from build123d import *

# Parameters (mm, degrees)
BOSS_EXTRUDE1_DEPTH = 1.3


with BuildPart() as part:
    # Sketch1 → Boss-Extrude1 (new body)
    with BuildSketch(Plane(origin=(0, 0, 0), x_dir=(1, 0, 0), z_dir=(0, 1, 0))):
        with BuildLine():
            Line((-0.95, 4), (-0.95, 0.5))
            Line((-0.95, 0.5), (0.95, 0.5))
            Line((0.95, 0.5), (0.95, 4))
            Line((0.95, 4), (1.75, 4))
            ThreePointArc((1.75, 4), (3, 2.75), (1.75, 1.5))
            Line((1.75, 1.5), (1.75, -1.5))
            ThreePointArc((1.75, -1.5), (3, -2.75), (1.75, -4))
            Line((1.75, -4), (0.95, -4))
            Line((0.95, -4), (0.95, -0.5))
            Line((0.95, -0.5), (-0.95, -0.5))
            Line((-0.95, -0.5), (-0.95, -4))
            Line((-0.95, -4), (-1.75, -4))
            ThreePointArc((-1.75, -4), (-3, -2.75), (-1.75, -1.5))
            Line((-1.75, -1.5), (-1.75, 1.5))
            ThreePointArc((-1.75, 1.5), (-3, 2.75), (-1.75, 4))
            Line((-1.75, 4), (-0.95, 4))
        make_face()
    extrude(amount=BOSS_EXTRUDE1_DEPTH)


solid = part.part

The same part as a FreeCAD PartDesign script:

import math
import FreeCAD as App
import Part
import Sketcher

V = App.Vector

doc = App.newDocument("Part")
params = doc.addObject("Spreadsheet::Sheet", "Params")
for row, (alias, value) in enumerate([
    ("sketch1_height", "3 mm"),
    ("sketch1_radius", "1.25 mm"),
    ("sketch1_width", "0.8 mm"),
    ("sketch1_width2", "1.9 mm"),
    ("sketch1_height2", "3.5 mm"),
    ("pad1_length", "1.3 mm"),
], start=1):
    params.set(f"A{row}", alias)
    params.set(f"B{row}", "=" + value)
    params.setAlias(f"B{row}", alias)

body = doc.addObject("PartDesign::Body", "Body")

# Sketch on XZ plane
sketch1 = body.newObject("Sketcher::SketchObject", "Sketch")
sketch1.AttachmentSupport = (doc.getObject("XZ_Plane"), [""])
sketch1.MapMode = "FlatFace"
sketch1.addGeometry([
    Part.LineSegment(V(-0.95, -0.5, 0), V(-0.95, -4, 0)),  # 0
    Part.LineSegment(V(-0.95, -4, 0), V(-1.75, -4, 0)),  # 1
    Part.ArcOfCircle(Part.Circle(V(-1.75, -2.75, 0), V(0, 0, 1), 1.25), math.radians(90), math.radians(270)),  # 2
    Part.LineSegment(V(-1.75, -1.5, 0), V(-1.75, 1.5, 0)),  # 3
    Part.ArcOfCircle(Part.Circle(V(-1.75, 2.75, 0), V(0, 0, 1), 1.25), math.radians(90), math.radians(270)),  # 4
    Part.LineSegment(V(-1.75, 4, 0), V(-0.95, 4, 0)),  # 5
    Part.LineSegment(V(-0.95, 4, 0), V(-0.95, 0.5, 0)),  # 6
    Part.LineSegment(V(-0.95, 0.5, 0), V(0.95, 0.5, 0)),  # 7
    Part.LineSegment(V(0.95, 0.5, 0), V(0.95, 4, 0)),  # 8
    Part.LineSegment(V(0.95, 4, 0), V(1.75, 4, 0)),  # 9
    Part.ArcOfCircle(Part.Circle(V(1.75, 2.75, 0), V(0, 0, 1), 1.25), math.radians(-90), math.radians(90)),  # 10
    Part.LineSegment(V(1.75, 1.5, 0), V(1.75, -1.5, 0)),  # 11
    Part.ArcOfCircle(Part.Circle(V(1.75, -2.75, 0), V(0, 0, 1), 1.25), math.radians(-90), math.radians(90)),  # 12
    Part.LineSegment(V(1.75, -4, 0), V(0.95, -4, 0)),  # 13
    Part.LineSegment(V(0.95, -4, 0), V(0.95, -0.5, 0)),  # 14
    Part.LineSegment(V(0.95, -0.5, 0), V(-0.95, -0.5, 0)),  # 15
], False)
sketch1.addConstraint([
    Sketcher.Constraint("Coincident", 0, 2, 1, 1),
    Sketcher.Constraint("Tangent", 1, 2, 2, 2),
    Sketcher.Constraint("Coincident", 2, 1, 3, 1),
    Sketcher.Constraint("Coincident", 3, 2, 4, 2),
    Sketcher.Constraint("Tangent", 4, 1, 5, 1),
    Sketcher.Constraint("Coincident", 5, 2, 6, 1),
    Sketcher.Constraint("Coincident", 6, 2, 7, 1),
    Sketcher.Constraint("Coincident", 7, 2, 8, 1),
    Sketcher.Constraint("Coincident", 8, 2, 9, 1),
    Sketcher.Constraint("Tangent", 9, 2, 10, 2),
    Sketcher.Constraint("Coincident", 10, 1, 11, 1),
    Sketcher.Constraint("Coincident", 11, 2, 12, 2),
    Sketcher.Constraint("Tangent", 12, 1, 13, 1),
    Sketcher.Constraint("Coincident", 13, 2, 14, 1),
    Sketcher.Constraint("Coincident", 14, 2, 15, 1),
    Sketcher.Constraint("Coincident", 15, 2, 0, 1),
    Sketcher.Constraint("Vertical", 0),
    Sketcher.Constraint("Horizontal", 1),
    Sketcher.Constraint("Vertical", 3),
    Sketcher.Constraint("Horizontal", 5),
    Sketcher.Constraint("Vertical", 6),
    Sketcher.Constraint("Horizontal", 7),
    Sketcher.Constraint("Vertical", 8),
    Sketcher.Constraint("Horizontal", 9),
    Sketcher.Constraint("Vertical", 11),
    Sketcher.Constraint("Horizontal", 13),
    Sketcher.Constraint("Vertical", 14),
    Sketcher.Constraint("Horizontal", 15),
    Sketcher.Constraint("Equal", 2, 4),
    Sketcher.Constraint("Equal", 4, 10),
    Sketcher.Constraint("Equal", 10, 12),
    Sketcher.Constraint("Symmetric", 2, 3, 10, 3, -1, 1),
    Sketcher.Constraint("Symmetric", 4, 3, 12, 3, -1, 1),
    Sketcher.Constraint("Symmetric", 6, 2, 14, 2, -1, 1),
    Sketcher.Constraint("Symmetric", 4, 3, 10, 3, -2),
    Sketcher.Constraint("Vertical", 1, 2, 2, 1),
    Sketcher.Constraint("Vertical", 0, 2, 5, 2),
    Sketcher.Constraint("Vertical", 9, 2, 10, 1),
    Sketcher.Constraint("Vertical", 8, 2, 13, 2),
    Sketcher.Constraint("DistanceY", 3, 1, 3, 2, 3.0),
    Sketcher.Constraint("Radius", 2, 1.25),
    Sketcher.Constraint("DistanceX", 1, 2, 1, 1, 0.8),
    Sketcher.Constraint("DistanceX", 7, 1, 7, 2, 1.9),
    Sketcher.Constraint("DistanceY", 0, 2, 0, 1, 3.5),
])
sketch1.setExpression("Constraints[39]", "Params.sketch1_height")
sketch1.setExpression("Constraints[40]", "Params.sketch1_radius")
sketch1.setExpression("Constraints[41]", "Params.sketch1_width")
sketch1.setExpression("Constraints[42]", "Params.sketch1_width2")
sketch1.setExpression("Constraints[43]", "Params.sketch1_height2")
pad1 = body.newObject("PartDesign::Pad", "Pad")
pad1.Profile = sketch1
pad1.setExpression("Length", "Params.pad1_length")
pad1.Reversed = True

doc.recompute()
